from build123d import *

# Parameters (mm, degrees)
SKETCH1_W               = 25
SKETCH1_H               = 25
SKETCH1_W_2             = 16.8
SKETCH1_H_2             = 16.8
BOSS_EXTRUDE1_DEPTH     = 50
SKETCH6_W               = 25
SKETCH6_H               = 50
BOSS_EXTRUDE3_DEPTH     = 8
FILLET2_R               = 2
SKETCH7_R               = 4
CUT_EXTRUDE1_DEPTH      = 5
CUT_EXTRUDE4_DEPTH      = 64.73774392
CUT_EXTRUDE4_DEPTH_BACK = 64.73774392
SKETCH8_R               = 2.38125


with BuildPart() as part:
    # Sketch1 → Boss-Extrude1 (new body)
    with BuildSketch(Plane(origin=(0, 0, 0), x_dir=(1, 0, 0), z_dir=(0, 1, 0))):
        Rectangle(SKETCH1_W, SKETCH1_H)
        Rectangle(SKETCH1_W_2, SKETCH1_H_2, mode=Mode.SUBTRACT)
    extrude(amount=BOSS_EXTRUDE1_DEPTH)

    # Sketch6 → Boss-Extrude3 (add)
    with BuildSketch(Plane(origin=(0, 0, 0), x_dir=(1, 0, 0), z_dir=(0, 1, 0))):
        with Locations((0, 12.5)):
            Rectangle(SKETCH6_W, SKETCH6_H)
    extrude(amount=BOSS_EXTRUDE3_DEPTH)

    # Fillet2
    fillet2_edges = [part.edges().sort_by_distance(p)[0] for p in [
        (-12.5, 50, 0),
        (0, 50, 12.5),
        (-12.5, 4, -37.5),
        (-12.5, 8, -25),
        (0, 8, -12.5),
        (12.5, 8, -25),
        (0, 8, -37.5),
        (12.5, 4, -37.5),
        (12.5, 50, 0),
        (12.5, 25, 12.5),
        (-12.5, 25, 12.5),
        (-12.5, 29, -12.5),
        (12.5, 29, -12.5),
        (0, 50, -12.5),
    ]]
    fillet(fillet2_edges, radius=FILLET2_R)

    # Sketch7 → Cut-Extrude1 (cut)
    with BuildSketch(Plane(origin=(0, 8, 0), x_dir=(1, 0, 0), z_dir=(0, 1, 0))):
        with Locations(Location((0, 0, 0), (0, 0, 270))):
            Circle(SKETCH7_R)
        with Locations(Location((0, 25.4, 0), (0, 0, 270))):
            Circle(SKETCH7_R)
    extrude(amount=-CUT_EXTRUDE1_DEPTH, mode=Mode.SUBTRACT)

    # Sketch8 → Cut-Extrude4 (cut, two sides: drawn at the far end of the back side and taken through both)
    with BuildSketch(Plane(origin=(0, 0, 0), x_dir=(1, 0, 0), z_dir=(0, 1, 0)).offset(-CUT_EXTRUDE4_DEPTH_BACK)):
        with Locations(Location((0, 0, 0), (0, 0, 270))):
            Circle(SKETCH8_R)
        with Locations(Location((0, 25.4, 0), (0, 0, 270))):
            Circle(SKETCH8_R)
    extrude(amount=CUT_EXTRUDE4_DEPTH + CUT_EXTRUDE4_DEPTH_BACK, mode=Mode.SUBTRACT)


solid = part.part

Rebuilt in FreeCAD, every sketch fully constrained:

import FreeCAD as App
import Part
import Sketcher
from FreeCAD import Vector


def edges_at(feature, points):
    """Names of the edges that pass closest to the given points."""
    edges = feature.Shape.Edges
    near = lambda p: min(range(len(edges)), key=lambda i: edges[i].distToShape(Part.Vertex(*p))[0])
    return sorted({f"Edge{near(p) + 1}" for p in points})

doc = App.newDocument("Part")
body = doc.addObject("PartDesign::Body", "Body")

sketch1 = body.newObject("Sketcher::SketchObject", "Sketch")
sketch1.AttachmentSupport = (doc.getObject("XZ_Plane"), [""])
sketch1.MapMode = "FlatFace"
sketch1.addGeometry([
    Part.LineSegment(Vector(-12, -12, 0), Vector(-12, 12, 0)),
    Part.LineSegment(Vector(-12, 12, 0), Vector(12, 12, 0)),
    Part.LineSegment(Vector(12, 12, 0), Vector(12, -12, 0)),
    Part.LineSegment(Vector(12, -12, 0), Vector(-12, -12, 0)),
    Part.LineSegment(Vector(8, 8, 0), Vector(-8, 8, 0)),
    Part.LineSegment(Vector(-8, 8, 0), Vector(-8, -8, 0)),
    Part.LineSegment(Vector(-8, -8, 0), Vector(8, -8, 0)),
    Part.LineSegment(Vector(8, -8, 0), Vector(8, 8, 0)),
], False)
sketch1.addConstraint([
    Sketcher.Constraint("Coincident", 0, 2, 1, 1),
    Sketcher.Constraint("Coincident", 1, 2, 2, 1),
    Sketcher.Constraint("Coincident", 2, 2, 3, 1),
    Sketcher.Constraint("Coincident", 3, 2, 0, 1),
    Sketcher.Constraint("Coincident", 4, 2, 5, 1),
    Sketcher.Constraint("Coincident", 5, 2, 6, 1),
    Sketcher.Constraint("Coincident", 6, 2, 7, 1),
    Sketcher.Constraint("Coincident", 7, 2, 4, 1),
    Sketcher.Constraint("Vertical", 0),
    Sketcher.Constraint("Horizontal", 1),
    Sketcher.Constraint("Vertical", 2),
    Sketcher.Constraint("Horizontal", 3),
    Sketcher.Constraint("Horizontal", 4),
    Sketcher.Constraint("Vertical", 5),
    Sketcher.Constraint("Horizontal", 6),
    Sketcher.Constraint("Vertical", 7),
    Sketcher.Constraint("Symmetric", 0, 2, 2, 2, -1, 1),
    Sketcher.Constraint("Symmetric", 4, 2, 6, 2, -1, 1),
    Sketcher.Constraint("Equal", 3, 0),
    Sketcher.Constraint("Equal", 6, 5),
    Sketcher.Constraint("DistanceX", 1, 1, 1, 2, 25.0),
    Sketcher.Constraint("DistanceX", 4, 2, 4, 1, 16.8),
])
pad1 = body.newObject("PartDesign::Pad", "Pad")
pad1.Profile = sketch1
pad1.Length = 50
pad1.Reversed = True

sketch2 = body.newObject("Sketcher::SketchObject", "Sketch001")
sketch2.AttachmentSupport = (doc.getObject("XZ_Plane"), [""])
sketch2.MapMode = "FlatFace"
sketch2.addGeometry([
    Part.LineSegment(Vector(-12, -38, 0), Vector(-12, 12, 0)),
    Part.LineSegment(Vector(-12, 12, 0), Vector(12, 12, 0)),
    Part.LineSegment(Vector(12, 12, 0), Vector(12, -38, 0)),
    Part.LineSegment(Vector(12, -38, 0), Vector(-12, -38, 0)),
], False)
sketch2.addConstraint([
    Sketcher.Constraint("Coincident", 0, 2, 1, 1),
    Sketcher.Constraint("Coincident", 1, 2, 2, 1),
    Sketcher.Constraint("Coincident", 2, 2, 3, 1),
    Sketcher.Constraint("Coincident", 3, 2, 0, 1),
    Sketcher.Constraint("Vertical", 0),
    Sketcher.Constraint("Horizontal", 1),
    Sketcher.Constraint("Vertical", 2),
    Sketcher.Constraint("Horizontal", 3),
    Sketcher.Constraint("DistanceX", 1, 1, 1, 2, 25.0),
    Sketcher.Constraint("DistanceY", 0, 1, 0, 2, 50.0),
    Sketcher.Constraint("DistanceX", 0, 2, -1, 1, 12.5),
    Sketcher.Constraint("DistanceY", -1, 1, 0, 2, 12.5),
])
pad2 = body.newObject("PartDesign::Pad", "Pad001")
pad2.Profile = sketch2
pad2.Length = 8
pad2.Reversed = True
doc.recompute()

fillet = body.newObject("PartDesign::Fillet", "Fillet")
fillet.Base = (pad2, edges_at(pad2, [
    (-12.5, 50, 0),
    (0, 50, 12.5),
    (-12.5, 4, -37.5),
    (-12.5, 8, -25),
    (0, 8, -12.5),
    (12.5, 8, -25),
    (0, 8, -37.5),
    (12.5, 4, -37.5),
    (12.5, 50, 0),
    (12.5, 25, 12.5),
    (-12.5, 25, 12.5),
    (-12.5, 29, -12.5),
    (12.5, 29, -12.5),
    (0, 50, -12.5),
]))
fillet.Radius = 2

sketch3 = body.newObject("Sketcher::SketchObject", "Sketch002")
sketch3.AttachmentSupport = (doc.getObject("XZ_Plane"), [""])
sketch3.MapMode = "FlatFace"
sketch3.AttachmentOffset = App.Placement(Vector(0, 0, -8), App.Rotation())
sketch3.addGeometry([
    Part.Circle(Vector(0, 0, 0), Vector(0, 0, 1), 4),
    Part.Circle(Vector(0, -25.4, 0), Vector(0, 0, 1), 4),
], False)
sketch3.addConstraint([
    Sketcher.Constraint("Coincident", 0, 3, -1, 1),
    Sketcher.Constraint("Equal", 0, 1),
    Sketcher.Constraint("PointOnObject", 1, 3, -2),
    Sketcher.Constraint("Diameter", 0, 8.0),
    Sketcher.Constraint("DistanceY", 1, 3, -1, 1, 25.4),
])
pocket1 = body.newObject("PartDesign::Pocket", "Pocket")
pocket1.Profile = sketch3
pocket1.Length = 5
pocket1.Reversed = True

sketch4 = body.newObject("Sketcher::SketchObject", "Sketch003")
sketch4.AttachmentSupport = (doc.getObject("XZ_Plane"), [""])
sketch4.MapMode = "FlatFace"
sketch4.addGeometry([
    Part.Circle(Vector(0, 0, 0), Vector(0, 0, 1), 2.4),
    Part.Circle(Vector(0, -25.4, 0), Vector(0, 0, 1), 2.4),
], False)
sketch4.addConstraint([
    Sketcher.Constraint("Coincident", 0, 3, -1, 1),
    Sketcher.Constraint("Equal", 0, 1),
    Sketcher.Constraint("PointOnObject", 1, 3, -2),
    Sketcher.Constraint("Diameter", 0, 4.7625),
    Sketcher.Constraint("DistanceY", 1, 3, -1, 1, 25.4),
])
pocket2 = body.newObject("PartDesign::Pocket", "Pocket001")
pocket2.Profile = sketch4
pocket2.Type = "ThroughAll"
pocket2.Midplane = True

doc.recompute()
